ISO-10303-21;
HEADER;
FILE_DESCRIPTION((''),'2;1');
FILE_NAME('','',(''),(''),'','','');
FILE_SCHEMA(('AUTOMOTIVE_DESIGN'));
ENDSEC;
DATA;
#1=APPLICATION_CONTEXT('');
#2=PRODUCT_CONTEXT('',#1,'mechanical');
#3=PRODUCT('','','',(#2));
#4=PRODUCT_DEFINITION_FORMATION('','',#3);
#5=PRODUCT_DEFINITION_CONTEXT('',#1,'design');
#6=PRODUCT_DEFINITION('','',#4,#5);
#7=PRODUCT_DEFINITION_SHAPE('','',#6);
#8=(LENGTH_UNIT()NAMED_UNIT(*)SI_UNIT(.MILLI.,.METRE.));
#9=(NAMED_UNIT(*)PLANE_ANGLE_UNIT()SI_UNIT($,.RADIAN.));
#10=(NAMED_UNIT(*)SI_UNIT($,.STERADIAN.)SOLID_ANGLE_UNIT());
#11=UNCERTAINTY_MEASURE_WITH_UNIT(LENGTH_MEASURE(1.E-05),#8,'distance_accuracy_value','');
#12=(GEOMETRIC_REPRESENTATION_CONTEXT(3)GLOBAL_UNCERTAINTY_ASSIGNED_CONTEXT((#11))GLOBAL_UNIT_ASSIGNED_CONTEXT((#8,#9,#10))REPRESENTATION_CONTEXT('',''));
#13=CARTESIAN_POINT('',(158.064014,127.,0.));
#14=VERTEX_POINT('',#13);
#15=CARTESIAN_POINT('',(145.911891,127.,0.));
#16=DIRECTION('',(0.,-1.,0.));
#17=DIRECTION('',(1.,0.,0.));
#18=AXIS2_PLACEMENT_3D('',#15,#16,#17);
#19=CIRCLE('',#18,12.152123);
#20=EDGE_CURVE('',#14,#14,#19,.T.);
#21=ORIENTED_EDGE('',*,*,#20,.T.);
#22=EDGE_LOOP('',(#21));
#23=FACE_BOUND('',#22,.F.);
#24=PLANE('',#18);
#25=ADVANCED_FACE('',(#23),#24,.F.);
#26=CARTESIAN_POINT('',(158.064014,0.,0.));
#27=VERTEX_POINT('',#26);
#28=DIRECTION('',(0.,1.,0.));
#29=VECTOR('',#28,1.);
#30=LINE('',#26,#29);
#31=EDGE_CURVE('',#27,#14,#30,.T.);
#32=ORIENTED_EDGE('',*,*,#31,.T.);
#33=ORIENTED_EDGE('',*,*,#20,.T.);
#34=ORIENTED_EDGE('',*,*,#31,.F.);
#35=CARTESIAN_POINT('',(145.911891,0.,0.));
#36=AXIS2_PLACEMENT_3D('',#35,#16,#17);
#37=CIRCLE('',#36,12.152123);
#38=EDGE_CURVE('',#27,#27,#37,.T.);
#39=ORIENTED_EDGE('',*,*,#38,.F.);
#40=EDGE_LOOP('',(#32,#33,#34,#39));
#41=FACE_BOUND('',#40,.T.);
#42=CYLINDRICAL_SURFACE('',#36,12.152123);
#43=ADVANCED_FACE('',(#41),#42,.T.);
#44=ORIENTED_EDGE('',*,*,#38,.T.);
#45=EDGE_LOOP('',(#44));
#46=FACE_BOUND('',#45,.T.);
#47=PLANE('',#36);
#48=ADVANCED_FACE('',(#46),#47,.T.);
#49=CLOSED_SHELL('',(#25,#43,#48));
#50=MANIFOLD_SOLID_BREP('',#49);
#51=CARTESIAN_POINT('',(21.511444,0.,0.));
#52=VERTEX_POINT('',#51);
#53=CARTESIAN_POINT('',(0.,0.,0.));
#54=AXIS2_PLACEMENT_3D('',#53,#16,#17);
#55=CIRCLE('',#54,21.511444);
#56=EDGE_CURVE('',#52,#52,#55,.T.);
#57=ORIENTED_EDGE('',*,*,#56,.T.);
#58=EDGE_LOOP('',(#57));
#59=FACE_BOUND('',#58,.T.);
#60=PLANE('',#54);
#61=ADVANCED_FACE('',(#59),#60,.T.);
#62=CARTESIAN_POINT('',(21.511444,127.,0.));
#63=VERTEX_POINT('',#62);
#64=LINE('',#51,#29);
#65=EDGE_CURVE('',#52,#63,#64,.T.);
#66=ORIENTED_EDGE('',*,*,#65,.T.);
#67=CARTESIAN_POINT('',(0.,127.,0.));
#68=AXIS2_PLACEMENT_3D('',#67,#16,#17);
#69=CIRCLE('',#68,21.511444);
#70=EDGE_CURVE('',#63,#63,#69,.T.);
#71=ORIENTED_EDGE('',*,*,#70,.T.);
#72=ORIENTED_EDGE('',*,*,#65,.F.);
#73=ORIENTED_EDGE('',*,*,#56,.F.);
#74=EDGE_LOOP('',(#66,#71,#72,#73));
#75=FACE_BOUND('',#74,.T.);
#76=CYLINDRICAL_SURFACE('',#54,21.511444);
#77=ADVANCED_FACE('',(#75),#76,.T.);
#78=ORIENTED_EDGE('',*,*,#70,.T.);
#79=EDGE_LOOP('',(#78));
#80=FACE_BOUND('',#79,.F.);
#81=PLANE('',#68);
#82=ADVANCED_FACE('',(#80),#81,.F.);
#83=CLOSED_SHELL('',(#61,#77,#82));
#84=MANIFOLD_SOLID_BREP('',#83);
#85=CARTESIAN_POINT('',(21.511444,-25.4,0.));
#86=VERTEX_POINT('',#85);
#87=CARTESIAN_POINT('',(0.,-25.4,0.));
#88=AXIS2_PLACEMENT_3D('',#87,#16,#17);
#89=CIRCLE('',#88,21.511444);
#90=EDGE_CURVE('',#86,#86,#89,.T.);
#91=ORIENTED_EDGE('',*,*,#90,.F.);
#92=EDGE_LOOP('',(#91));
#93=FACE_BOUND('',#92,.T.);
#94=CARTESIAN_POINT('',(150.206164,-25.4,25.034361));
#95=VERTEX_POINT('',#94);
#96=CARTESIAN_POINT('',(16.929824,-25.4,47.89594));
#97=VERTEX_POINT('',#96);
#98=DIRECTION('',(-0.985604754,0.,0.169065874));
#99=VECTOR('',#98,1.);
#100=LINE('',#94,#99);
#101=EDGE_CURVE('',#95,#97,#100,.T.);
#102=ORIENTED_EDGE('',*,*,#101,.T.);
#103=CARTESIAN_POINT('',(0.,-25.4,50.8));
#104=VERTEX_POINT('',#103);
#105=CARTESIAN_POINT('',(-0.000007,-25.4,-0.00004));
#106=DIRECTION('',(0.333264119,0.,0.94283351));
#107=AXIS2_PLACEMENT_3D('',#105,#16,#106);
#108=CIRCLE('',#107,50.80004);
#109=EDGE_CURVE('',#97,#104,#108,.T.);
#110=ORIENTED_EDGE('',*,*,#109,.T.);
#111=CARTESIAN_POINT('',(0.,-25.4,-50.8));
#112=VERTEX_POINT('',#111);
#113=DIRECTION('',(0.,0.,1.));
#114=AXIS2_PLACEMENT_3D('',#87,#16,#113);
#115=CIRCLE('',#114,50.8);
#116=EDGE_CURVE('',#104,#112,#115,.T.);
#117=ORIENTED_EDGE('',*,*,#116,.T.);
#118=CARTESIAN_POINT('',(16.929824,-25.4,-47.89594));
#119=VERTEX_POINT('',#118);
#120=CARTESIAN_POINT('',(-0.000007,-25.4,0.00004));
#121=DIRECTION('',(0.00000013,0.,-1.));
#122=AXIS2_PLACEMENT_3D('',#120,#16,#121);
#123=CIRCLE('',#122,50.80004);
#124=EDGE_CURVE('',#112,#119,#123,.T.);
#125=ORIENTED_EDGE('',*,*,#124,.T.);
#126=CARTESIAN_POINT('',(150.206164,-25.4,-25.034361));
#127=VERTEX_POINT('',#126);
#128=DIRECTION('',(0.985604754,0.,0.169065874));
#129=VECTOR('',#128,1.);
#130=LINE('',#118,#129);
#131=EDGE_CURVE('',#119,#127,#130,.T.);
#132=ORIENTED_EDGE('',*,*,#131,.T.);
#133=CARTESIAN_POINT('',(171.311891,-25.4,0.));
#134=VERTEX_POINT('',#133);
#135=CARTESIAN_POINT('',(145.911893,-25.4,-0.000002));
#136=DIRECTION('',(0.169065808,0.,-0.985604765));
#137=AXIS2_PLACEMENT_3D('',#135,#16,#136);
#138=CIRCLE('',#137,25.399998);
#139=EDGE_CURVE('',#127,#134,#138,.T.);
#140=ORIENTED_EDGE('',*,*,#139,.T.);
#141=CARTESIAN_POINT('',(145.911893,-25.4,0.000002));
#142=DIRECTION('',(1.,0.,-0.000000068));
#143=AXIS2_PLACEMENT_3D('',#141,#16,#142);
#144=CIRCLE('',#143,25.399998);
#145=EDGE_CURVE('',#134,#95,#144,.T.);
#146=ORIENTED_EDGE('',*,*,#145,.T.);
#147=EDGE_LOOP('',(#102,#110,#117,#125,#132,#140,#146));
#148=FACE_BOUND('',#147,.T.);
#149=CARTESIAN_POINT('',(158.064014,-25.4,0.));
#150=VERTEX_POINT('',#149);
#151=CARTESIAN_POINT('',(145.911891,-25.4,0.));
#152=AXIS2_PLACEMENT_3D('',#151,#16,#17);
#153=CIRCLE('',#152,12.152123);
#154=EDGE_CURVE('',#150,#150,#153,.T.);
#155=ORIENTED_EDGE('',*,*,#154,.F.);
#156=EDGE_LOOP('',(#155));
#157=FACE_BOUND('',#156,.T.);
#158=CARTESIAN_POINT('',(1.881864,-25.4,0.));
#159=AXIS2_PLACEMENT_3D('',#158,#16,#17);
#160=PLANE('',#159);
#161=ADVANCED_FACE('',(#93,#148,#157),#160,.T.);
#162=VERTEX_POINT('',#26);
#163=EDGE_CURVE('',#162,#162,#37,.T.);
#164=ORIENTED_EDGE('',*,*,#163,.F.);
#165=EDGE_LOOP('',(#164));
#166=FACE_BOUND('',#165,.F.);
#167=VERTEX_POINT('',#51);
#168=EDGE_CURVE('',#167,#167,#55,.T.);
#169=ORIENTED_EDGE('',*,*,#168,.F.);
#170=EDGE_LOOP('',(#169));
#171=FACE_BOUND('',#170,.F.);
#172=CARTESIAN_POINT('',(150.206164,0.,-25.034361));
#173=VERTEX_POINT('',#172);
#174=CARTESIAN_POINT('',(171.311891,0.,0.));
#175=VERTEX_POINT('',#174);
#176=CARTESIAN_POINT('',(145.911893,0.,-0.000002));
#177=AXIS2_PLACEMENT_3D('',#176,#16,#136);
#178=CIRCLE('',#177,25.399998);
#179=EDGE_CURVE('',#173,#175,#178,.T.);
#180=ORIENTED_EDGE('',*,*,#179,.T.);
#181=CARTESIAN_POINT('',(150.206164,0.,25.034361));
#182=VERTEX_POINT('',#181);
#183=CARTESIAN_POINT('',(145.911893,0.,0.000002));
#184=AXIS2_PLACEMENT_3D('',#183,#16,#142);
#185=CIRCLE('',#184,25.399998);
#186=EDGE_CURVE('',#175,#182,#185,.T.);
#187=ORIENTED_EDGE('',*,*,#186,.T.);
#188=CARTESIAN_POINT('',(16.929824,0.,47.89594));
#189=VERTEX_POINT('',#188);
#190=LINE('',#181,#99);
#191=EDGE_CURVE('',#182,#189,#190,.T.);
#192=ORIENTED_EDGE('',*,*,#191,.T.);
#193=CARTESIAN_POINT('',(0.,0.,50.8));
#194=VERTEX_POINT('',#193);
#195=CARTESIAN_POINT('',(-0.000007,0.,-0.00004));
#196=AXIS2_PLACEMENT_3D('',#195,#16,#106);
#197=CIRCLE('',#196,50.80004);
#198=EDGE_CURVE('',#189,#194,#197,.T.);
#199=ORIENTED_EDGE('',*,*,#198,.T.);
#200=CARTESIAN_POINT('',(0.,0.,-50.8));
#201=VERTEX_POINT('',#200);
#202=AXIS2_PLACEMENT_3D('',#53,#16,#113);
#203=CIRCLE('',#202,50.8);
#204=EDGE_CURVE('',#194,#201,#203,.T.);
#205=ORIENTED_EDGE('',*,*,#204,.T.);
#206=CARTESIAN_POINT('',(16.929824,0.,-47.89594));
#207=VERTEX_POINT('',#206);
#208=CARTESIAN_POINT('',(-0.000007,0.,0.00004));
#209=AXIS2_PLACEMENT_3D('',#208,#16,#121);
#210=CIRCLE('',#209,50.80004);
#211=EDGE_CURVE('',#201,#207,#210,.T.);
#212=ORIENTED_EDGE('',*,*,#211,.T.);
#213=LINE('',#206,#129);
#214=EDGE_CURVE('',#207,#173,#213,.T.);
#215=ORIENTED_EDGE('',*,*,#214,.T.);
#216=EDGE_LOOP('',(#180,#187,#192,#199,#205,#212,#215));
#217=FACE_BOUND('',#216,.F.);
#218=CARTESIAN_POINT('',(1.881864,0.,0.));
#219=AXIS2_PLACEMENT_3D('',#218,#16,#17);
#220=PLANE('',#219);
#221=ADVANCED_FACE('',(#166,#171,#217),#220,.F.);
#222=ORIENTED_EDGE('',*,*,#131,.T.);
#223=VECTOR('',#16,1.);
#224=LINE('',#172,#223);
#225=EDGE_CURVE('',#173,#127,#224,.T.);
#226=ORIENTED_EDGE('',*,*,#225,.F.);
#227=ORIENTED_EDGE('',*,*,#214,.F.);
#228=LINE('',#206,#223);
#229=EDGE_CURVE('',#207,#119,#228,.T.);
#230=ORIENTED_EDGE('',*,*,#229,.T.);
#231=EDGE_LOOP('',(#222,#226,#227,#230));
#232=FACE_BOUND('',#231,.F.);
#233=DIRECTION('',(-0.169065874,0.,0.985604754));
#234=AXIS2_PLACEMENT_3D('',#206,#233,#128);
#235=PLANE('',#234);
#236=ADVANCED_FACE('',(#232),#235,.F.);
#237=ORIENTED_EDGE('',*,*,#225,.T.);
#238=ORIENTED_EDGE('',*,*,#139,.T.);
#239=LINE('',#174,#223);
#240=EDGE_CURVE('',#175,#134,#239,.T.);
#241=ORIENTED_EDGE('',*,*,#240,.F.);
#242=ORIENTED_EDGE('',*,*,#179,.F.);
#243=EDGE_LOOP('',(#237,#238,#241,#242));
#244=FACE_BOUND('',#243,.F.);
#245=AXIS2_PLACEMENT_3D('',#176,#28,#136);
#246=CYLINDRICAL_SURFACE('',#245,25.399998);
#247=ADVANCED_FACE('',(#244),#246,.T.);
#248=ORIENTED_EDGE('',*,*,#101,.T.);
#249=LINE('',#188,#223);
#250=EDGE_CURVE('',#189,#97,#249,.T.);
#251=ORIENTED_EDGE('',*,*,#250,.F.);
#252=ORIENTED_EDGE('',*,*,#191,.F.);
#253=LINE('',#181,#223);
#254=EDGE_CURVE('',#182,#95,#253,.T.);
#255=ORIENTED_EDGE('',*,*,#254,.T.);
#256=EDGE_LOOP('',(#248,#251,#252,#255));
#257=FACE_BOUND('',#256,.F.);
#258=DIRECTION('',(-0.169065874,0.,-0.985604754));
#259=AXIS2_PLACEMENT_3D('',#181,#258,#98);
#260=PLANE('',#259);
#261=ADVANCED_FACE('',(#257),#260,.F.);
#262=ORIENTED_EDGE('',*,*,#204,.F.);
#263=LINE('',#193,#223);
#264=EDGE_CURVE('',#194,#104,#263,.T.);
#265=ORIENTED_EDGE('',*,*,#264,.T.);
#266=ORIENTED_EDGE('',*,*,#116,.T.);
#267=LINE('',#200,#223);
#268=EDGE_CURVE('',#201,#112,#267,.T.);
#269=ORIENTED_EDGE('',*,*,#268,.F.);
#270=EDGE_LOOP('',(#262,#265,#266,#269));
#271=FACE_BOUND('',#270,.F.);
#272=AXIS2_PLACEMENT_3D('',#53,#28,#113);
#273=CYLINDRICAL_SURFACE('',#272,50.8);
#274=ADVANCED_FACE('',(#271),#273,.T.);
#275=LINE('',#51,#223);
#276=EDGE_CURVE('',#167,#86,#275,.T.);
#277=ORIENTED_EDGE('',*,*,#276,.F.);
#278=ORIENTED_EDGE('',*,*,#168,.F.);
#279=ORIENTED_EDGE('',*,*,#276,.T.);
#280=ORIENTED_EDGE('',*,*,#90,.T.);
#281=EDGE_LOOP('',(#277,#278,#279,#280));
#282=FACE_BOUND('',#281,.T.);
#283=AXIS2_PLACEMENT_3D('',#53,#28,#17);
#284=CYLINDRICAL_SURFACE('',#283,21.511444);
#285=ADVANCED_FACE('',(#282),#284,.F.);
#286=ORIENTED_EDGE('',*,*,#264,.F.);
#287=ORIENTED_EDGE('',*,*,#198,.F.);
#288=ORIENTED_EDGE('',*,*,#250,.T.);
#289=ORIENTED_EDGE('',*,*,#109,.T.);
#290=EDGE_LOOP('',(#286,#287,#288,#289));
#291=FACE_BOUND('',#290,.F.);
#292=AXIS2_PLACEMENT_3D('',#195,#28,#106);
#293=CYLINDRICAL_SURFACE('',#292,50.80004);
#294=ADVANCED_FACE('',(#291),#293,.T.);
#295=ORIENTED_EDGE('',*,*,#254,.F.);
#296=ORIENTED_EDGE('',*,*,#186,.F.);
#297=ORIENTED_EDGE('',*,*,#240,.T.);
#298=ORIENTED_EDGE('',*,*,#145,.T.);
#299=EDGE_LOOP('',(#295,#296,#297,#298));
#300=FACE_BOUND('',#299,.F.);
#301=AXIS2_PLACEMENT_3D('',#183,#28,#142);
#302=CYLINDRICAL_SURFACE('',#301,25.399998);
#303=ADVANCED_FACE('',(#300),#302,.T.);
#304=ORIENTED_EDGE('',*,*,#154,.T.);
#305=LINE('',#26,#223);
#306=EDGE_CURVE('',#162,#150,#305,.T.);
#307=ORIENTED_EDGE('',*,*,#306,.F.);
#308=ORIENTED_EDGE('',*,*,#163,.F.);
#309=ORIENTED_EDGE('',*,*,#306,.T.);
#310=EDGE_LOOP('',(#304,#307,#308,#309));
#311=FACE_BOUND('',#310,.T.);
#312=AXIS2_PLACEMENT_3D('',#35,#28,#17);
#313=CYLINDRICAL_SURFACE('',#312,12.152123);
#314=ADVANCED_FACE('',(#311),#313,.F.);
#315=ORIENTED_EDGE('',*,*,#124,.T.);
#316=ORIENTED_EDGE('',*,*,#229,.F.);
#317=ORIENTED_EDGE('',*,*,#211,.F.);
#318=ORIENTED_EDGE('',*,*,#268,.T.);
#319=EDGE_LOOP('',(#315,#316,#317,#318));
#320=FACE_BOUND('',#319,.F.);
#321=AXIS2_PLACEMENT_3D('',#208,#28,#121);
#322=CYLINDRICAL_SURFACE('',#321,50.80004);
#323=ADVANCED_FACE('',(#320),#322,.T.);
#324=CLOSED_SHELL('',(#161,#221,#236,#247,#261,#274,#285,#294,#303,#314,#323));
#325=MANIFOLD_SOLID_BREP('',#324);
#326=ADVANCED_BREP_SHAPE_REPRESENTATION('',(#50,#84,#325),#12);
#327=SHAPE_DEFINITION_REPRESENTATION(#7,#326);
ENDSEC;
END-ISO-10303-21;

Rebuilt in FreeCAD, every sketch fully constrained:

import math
import FreeCAD as App
import Part
import Sketcher

V = App.Vector
Q = App.Units.Quantity

doc = App.newDocument("Part")
body = doc.addObject("PartDesign::Body", "Body")

# Sketch on XZ plane
sketch1 = body.newObject("Sketcher::SketchObject", "Sketch")
sketch1.AttachmentSupport = (doc.getObject("XZ_Plane"), [""])
sketch1.MapMode = "FlatFace"
sketch1.addGeometry([
    Part.ArcOfCircle(Part.Circle(V(0, 0, 0), V(0, 0, 1), 51), math.radians(70.53), math.radians(90)),  # 0
    Part.ArcOfCircle(Part.Circle(V(0, 0, 0), V(0, 0, 1), 51), math.radians(90), math.radians(270)),  # 1
    Part.ArcOfCircle(Part.Circle(V(0, 0, 0), V(0, 0, 1), 51), math.radians(-90), math.radians(-70.53)),  # 2
    Part.LineSegment(V(17, -48, 0), V(150, -25, 0)),  # 3
    Part.ArcOfCircle(Part.Circle(V(146, 0, 0), V(0, 0, 1), 25), math.radians(-80), math.radians(0)),  # 4
    Part.ArcOfCircle(Part.Circle(V(146, 0, 0), V(0, 0, 1), 25), math.radians(0), math.radians(80)),  # 5
    Part.LineSegment(V(150, 25, 0), V(17, 48, 0)),  # 6
    Part.Circle(V(0, 0, 0), V(0, 0, 1), 22),  # 7
    Part.Circle(V(146, 0, 0), V(0, 0, 1), 12),  # 8
], False)
sketch1.addConstraint([
    Sketcher.Constraint("Tangent", 0, 2, 1, 1),
    Sketcher.Constraint("Tangent", 1, 2, 2, 1),
    Sketcher.Constraint("Coincident", 2, 2, 3, 1),
    Sketcher.Constraint("Tangent", 3, 2, 4, 1),
    Sketcher.Constraint("Tangent", 4, 2, 5, 1),
    Sketcher.Constraint("Tangent", 5, 2, 6, 1),
    Sketcher.Constraint("Coincident", 6, 2, 0, 1),
    Sketcher.Constraint("Coincident", 1, 3, -1, 1),
    Sketcher.Constraint("Coincident", 7, 3, -1, 1),
    Sketcher.Constraint("Coincident", 8, 3, 4, 3),
    Sketcher.Constraint("Equal", 0, 2),
    Sketcher.Constraint("Equal", 4, 5),
    Sketcher.Constraint("Symmetric", 3, 2, 5, 2, -1),
    Sketcher.Constraint("PointOnObject", 0, 2, -2),
    Sketcher.Constraint("PointOnObject", 1, 2, -2),
    Sketcher.Constraint("PointOnObject", 4, 2, -1),
    Sketcher.Constraint("Radius", 1, Q("2 in")),
    Sketcher.Constraint("Radius", 4, Q("0.9999999 in")),
    Sketcher.Constraint("Diameter", 7, 43.022888),
    Sketcher.Constraint("Radius", 0, 50.80004),
    Sketcher.Constraint("Diameter", 8, 24.304246),
    Sketcher.Constraint("DistanceX", 2, 2, 3, 2, Q("5.2471 in")),
    Sketcher.Constraint("DistanceX", 0, 3, 4, 3, 145.911899),
])
pad1 = body.newObject("PartDesign::Pad", "Pad")
pad1.Profile = sketch1
pad1.Length = Q("1 in")
body2 = doc.addObject("PartDesign::Body", "Body001")
body2.AllowCompound = True

# Sketch on XZ plane
sketch2 = body2.newObject("Sketcher::SketchObject", "Sketch001")
sketch2.AttachmentSupport = (doc.getObject("XZ_Plane001"), [""])
sketch2.MapMode = "FlatFace"
sketch2.addGeometry([
    Part.Circle(V(0, 0, 0), V(0, 0, 1), 22),
    Part.Circle(V(146, 0, 0), V(0, 0, 1), 12),
], False)
sketch2.addConstraint([
    Sketcher.Constraint("Coincident", 0, 3, -1, 1),
    Sketcher.Constraint("PointOnObject", 1, 3, -1),
    Sketcher.Constraint("Diameter", 0, 43.022888),
    Sketcher.Constraint("Diameter", 1, 24.304246),
    Sketcher.Constraint("DistanceX", -1, 1, 1, 3, 145.911891),
])
pad2 = body2.newObject("PartDesign::Pad", "Pad001")
pad2.Profile = sketch2
pad2.Length = Q("5 in")
pad2.Reversed = True

doc.recompute()
